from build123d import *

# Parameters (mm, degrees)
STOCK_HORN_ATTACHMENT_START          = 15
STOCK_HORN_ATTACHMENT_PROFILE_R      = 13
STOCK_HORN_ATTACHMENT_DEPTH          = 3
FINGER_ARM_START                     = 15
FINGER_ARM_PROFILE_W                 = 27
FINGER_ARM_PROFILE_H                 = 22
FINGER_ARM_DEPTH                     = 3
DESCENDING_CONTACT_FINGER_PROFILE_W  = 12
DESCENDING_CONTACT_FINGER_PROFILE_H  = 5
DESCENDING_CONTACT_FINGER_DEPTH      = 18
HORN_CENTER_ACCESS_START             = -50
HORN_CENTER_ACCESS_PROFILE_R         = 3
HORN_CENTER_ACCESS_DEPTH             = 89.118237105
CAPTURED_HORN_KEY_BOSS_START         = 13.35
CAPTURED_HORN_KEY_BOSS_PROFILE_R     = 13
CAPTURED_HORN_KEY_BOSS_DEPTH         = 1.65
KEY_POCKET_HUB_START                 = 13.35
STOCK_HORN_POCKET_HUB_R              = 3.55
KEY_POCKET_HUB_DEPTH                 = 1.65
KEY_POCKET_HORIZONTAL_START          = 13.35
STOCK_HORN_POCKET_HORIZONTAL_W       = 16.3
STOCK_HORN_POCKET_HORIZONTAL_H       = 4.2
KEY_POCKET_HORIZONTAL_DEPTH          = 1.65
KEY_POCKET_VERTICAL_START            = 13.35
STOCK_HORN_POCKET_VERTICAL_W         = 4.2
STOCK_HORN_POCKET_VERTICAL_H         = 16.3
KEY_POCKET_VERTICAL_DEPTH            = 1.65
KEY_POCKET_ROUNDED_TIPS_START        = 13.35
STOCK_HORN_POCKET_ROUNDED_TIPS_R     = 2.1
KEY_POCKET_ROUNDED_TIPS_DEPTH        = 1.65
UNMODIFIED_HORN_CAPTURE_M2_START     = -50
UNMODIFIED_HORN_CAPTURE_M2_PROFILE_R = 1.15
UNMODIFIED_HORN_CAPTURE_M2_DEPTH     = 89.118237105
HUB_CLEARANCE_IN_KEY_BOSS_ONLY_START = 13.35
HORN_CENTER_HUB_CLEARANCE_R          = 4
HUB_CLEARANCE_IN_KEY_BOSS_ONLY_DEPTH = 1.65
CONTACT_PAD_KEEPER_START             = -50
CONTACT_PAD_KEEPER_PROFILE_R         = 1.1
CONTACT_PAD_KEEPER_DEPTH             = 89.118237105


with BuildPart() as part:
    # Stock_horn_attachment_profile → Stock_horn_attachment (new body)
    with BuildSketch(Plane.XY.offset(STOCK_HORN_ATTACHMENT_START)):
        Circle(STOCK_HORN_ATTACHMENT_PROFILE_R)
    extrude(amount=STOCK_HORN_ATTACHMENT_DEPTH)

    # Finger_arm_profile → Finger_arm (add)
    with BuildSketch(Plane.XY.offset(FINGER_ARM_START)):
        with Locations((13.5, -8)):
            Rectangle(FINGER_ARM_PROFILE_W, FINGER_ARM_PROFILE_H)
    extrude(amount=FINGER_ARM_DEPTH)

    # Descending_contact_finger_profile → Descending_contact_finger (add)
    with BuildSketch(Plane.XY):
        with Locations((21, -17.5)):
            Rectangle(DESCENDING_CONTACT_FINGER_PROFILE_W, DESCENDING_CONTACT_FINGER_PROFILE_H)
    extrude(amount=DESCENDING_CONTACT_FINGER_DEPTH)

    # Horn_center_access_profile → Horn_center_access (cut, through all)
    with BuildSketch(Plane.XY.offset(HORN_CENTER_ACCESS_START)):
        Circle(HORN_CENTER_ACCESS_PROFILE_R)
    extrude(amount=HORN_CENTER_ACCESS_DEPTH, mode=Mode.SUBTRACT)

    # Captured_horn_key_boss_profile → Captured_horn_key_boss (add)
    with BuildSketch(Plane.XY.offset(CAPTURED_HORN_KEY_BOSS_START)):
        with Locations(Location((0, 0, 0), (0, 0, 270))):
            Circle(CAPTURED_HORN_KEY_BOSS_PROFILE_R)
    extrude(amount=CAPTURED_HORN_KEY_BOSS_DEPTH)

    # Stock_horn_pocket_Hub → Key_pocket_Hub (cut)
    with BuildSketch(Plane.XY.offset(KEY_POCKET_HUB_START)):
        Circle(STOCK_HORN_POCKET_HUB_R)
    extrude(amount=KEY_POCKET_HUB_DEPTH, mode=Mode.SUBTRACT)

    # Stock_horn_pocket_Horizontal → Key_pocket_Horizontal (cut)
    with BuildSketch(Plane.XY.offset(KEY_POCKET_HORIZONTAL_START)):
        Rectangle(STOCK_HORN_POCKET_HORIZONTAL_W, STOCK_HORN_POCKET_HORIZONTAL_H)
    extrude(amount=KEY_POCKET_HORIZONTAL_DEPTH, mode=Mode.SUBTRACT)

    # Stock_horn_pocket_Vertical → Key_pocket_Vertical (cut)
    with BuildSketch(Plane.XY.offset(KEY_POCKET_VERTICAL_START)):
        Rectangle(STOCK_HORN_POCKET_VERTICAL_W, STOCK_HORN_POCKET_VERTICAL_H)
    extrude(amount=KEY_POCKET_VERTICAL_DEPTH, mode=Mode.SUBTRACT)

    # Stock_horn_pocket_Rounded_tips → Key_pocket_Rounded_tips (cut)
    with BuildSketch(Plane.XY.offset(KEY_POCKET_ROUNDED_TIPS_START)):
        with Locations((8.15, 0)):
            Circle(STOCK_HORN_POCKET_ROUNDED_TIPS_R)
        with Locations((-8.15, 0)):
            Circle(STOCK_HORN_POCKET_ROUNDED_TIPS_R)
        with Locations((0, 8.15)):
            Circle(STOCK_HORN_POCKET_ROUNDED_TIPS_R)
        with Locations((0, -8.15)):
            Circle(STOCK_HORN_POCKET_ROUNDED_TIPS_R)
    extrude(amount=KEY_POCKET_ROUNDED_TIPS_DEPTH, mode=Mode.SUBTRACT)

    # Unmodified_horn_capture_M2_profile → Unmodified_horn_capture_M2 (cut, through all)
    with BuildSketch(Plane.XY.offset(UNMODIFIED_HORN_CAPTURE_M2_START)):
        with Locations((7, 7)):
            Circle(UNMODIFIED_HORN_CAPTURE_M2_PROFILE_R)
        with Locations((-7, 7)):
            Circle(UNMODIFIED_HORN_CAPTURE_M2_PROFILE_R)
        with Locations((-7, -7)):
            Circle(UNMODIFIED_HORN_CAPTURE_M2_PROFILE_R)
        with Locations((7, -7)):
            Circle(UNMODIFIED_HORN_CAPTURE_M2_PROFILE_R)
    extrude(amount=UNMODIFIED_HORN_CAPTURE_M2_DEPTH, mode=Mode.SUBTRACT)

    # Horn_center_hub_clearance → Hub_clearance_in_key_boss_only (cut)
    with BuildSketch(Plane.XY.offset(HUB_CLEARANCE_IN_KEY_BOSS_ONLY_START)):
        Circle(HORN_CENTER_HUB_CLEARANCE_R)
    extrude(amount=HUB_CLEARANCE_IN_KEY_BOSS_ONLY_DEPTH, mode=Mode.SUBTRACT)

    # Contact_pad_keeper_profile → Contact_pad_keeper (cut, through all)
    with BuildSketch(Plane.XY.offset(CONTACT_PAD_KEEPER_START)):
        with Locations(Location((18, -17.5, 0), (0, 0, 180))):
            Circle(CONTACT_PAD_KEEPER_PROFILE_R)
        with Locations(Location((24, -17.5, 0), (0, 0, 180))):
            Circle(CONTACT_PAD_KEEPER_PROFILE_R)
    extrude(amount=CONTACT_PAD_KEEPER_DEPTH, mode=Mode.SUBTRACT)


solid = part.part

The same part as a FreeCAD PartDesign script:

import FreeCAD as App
import Part
import Sketcher

V = App.Vector
Q = App.Units.Quantity

doc = App.newDocument("Part")
params = doc.addObject("Spreadsheet::Sheet", "Params")
for row, (alias, value) in enumerate([
    ("sketch1_diameter", "26 mm"),
    ("pad1_length", "3 mm"),
    ("sketch2_width", "27 mm"),
    ("sketch2_height", "22 mm"),
    ("pad2_length", "3 mm"),
    ("sketch3_width", "12 mm"),
    ("sketch3_height", "5 mm"),
    ("pad3_length", "18 mm"),
    ("sketch4_diameter", "6 mm"),
    ("sketch5_diameter", "26 mm"),
    ("pad4_length", "1.65 mm"),
    ("sketch6_diameter", "7.1 mm"),
    ("pocket2_length", "1.65 mm"),
    ("sketch7_width", "16.3 mm"),
    ("sketch7_height", "4.2 mm"),
    ("pocket3_length", "1.65 mm"),
    ("sketch8_width", "4.2 mm"),
    ("sketch8_height", "16.3 mm"),
    ("pocket4_length", "1.65 mm"),
    ("sketch9_diameter", "4.2 mm"),
    ("pocket5_length", "1.65 mm"),
    ("sketch10_diameter", "2.3 mm"),
    ("sketch11_diameter", "8 mm"),
    ("pocket7_length", "1.65 mm"),
    ("sketch12_diameter", "2.2 mm"),
], start=1):
    params.set(f"A{row}", alias)
    params.set(f"B{row}", "=" + value)
    params.setAlias(f"B{row}", alias)

body = doc.addObject("PartDesign::Body", "Body")

sketch1 = doc.addObject("Sketcher::SketchObject", "Sketch")
body.addObject(sketch1)
sketch1.AttachmentSupport = (doc.XY_Plane, [""])
sketch1.MapMode = "FlatFace"
sketch1.AttachmentOffset = App.Placement(V(0, 0, 15), App.Rotation())
sketch1.addGeometry(Part.Circle(V(0, 0, 0), V(0, 0, 1), 13), False)
sketch1.addConstraint(Sketcher.Constraint("Coincident", 0, 3, -1, 1))
sketch1.addConstraint(Sketcher.Constraint("Diameter", 0, Q("26 mm")))
sketch1.setExpression("Constraints[1]", "Params.sketch1_diameter")
pad1 = doc.addObject("PartDesign::Pad", "Pad")
body.addObject(pad1)
pad1.Profile = sketch1
pad1.setExpression("Length", "Params.pad1_length")

sketch2 = doc.addObject("Sketcher::SketchObject", "Sketch001")
body.addObject(sketch2)
sketch2.AttachmentSupport = (doc.XY_Plane, [""])
sketch2.MapMode = "FlatFace"
sketch2.AttachmentOffset = App.Placement(V(0, 0, 15), App.Rotation())
sketch2.addGeometry(Part.LineSegment(V(0, 3, 0), V(0, -19, 0)), False)
sketch2.addGeometry(Part.LineSegment(V(0, -19, 0), V(27, -19, 0)), False)
sketch2.addGeometry(Part.LineSegment(V(27, -19, 0), V(27, 3, 0)), False)
sketch2.addGeometry(Part.LineSegment(V(27, 3, 0), V(0, 3, 0)), False)
sketch2.addConstraint(Sketcher.Constraint("Coincident", 0, 2, 1, 1))
sketch2.addConstraint(Sketcher.Constraint("Coincident", 1, 2, 2, 1))
sketch2.addConstraint(Sketcher.Constraint("Coincident", 2, 2, 3, 1))
sketch2.addConstraint(Sketcher.Constraint("Coincident", 3, 2, 0, 1))
sketch2.addConstraint(Sketcher.Constraint("Vertical", 0))
sketch2.addConstraint(Sketcher.Constraint("Horizontal", 1))
sketch2.addConstraint(Sketcher.Constraint("Vertical", 2))
sketch2.addConstraint(Sketcher.Constraint("Horizontal", 3))
sketch2.addConstraint(Sketcher.Constraint("PointOnObject", 0, 2, -2))
sketch2.addConstraint(Sketcher.Constraint("DistanceX", 1, 1, 1, 2, Q("27 mm")))
sketch2.addConstraint(Sketcher.Constraint("DistanceY", 0, 2, 0, 1, Q("22 mm")))
sketch2.addConstraint(Sketcher.Constraint("DistanceY", 0, 2, -1, 1, Q("19 mm")))
sketch2.setExpression("Constraints[9]", "Params.sketch2_width")
sketch2.setExpression("Constraints[10]", "Params.sketch2_height")
pad2 = doc.addObject("PartDesign::Pad", "Pad001")
body.addObject(pad2)
pad2.Profile = sketch2
pad2.setExpression("Length", "Params.pad2_length")

sketch3 = doc.addObject("Sketcher::SketchObject", "Sketch002")
body.addObject(sketch3)
sketch3.AttachmentSupport = (doc.XY_Plane, [""])
sketch3.MapMode = "FlatFace"
sketch3.addGeometry(Part.LineSegment(V(15, -15, 0), V(15, -20, 0)), False)
sketch3.addGeometry(Part.LineSegment(V(15, -20, 0), V(27, -20, 0)), False)
sketch3.addGeometry(Part.LineSegment(V(27, -20, 0), V(27, -15, 0)), False)
sketch3.addGeometry(Part.LineSegment(V(27, -15, 0), V(15, -15, 0)), False)
sketch3.addConstraint(Sketcher.Constraint("Coincident", 0, 2, 1, 1))
sketch3.addConstraint(Sketcher.Constraint("Coincident", 1, 2, 2, 1))
sketch3.addConstraint(Sketcher.Constraint("Coincident", 2, 2, 3, 1))
sketch3.addConstraint(Sketcher.Constraint("Coincident", 3, 2, 0, 1))
sketch3.addConstraint(Sketcher.Constraint("Vertical", 0))
sketch3.addConstraint(Sketcher.Constraint("Horizontal", 1))
sketch3.addConstraint(Sketcher.Constraint("Vertical", 2))
sketch3.addConstraint(Sketcher.Constraint("Horizontal", 3))
sketch3.addConstraint(Sketcher.Constraint("DistanceX", 1, 1, 1, 2, Q("12 mm")))
sketch3.addConstraint(Sketcher.Constraint("DistanceY", 0, 2, 0, 1, Q("5 mm")))
sketch3.addConstraint(Sketcher.Constraint("DistanceX", -1, 1, 0, 2, Q("15 mm")))
sketch3.addConstraint(Sketcher.Constraint("DistanceY", 0, 2, -1, 1, Q("20 mm")))
sketch3.setExpression("Constraints[8]", "Params.sketch3_width")
sketch3.setExpression("Constraints[9]", "Params.sketch3_height")
pad3 = doc.addObject("PartDesign::Pad", "Pad002")
body.addObject(pad3)
pad3.Profile = sketch3
pad3.setExpression("Length", "Params.pad3_length")

sketch4 = doc.addObject("Sketcher::SketchObject", "Sketch003")
body.addObject(sketch4)
sketch4.AttachmentSupport = (doc.XY_Plane, [""])
sketch4.MapMode = "FlatFace"
sketch4.AttachmentOffset = App.Placement(V(0, 0, -50), App.Rotation())
sketch4.addGeometry(Part.Circle(V(0, 0, 0), V(0, 0, 1), 3), False)
sketch4.addConstraint(Sketcher.Constraint("Coincident", 0, 3, -1, 1))
sketch4.addConstraint(Sketcher.Constraint("Diameter", 0, Q("6 mm")))
sketch4.setExpression("Constraints[1]", "Params.sketch4_diameter")
pocket1 = doc.addObject("PartDesign::Pocket", "Pocket")
body.addObject(pocket1)
pocket1.Profile = sketch4
pocket1.Type = "ThroughAll"
pocket1.Reversed = True

sketch5 = doc.addObject("Sketcher::SketchObject", "Sketch004")
body.addObject(sketch5)
sketch5.AttachmentSupport = (doc.XY_Plane, [""])
sketch5.MapMode = "FlatFace"
sketch5.AttachmentOffset = App.Placement(V(0, 0, 13.35), App.Rotation())
sketch5.addGeometry(Part.Circle(V(0, 0, 0), V(0, 0, 1), 13), False)
sketch5.addConstraint(Sketcher.Constraint("Coincident", 0, 3, -1, 1))
sketch5.addConstraint(Sketcher.Constraint("Diameter", 0, Q("26 mm")))
sketch5.setExpression("Constraints[1]", "Params.sketch5_diameter")
pad4 = doc.addObject("PartDesign::Pad", "Pad003")
body.addObject(pad4)
pad4.Profile = sketch5
pad4.setExpression("Length", "Params.pad4_length")

sketch6 = doc.addObject("Sketcher::SketchObject", "Sketch005")
body.addObject(sketch6)
sketch6.AttachmentSupport = (doc.XY_Plane, [""])
sketch6.MapMode = "FlatFace"
sketch6.AttachmentOffset = App.Placement(V(0, 0, 13.35), App.Rotation())
sketch6.addGeometry(Part.Circle(V(0, 0, 0), V(0, 0, 1), 3.5), False)
sketch6.addConstraint(Sketcher.Constraint("Coincident", 0, 3, -1, 1))
sketch6.addConstraint(Sketcher.Constraint("Diameter", 0, Q("7.1 mm")))
sketch6.setExpression("Constraints[1]", "Params.sketch6_diameter")
pocket2 = doc.addObject("PartDesign::Pocket", "Pocket001")
body.addObject(pocket2)
pocket2.Profile = sketch6
pocket2.setExpression("Length", "Params.pocket2_length")
pocket2.Reversed = True

sketch7 = doc.addObject("Sketcher::SketchObject", "Sketch006")
body.addObject(sketch7)
sketch7.AttachmentSupport = (doc.XY_Plane, [""])
sketch7.MapMode = "FlatFace"
sketch7.AttachmentOffset = App.Placement(V(0, 0, 13.35), App.Rotation())
sketch7.addGeometry(Part.LineSegment(V(-8.2, 2.1, 0), V(-8.2, -2.1, 0)), False)
sketch7.addGeometry(Part.LineSegment(V(-8.2, -2.1, 0), V(8.2, -2.1, 0)), False)
sketch7.addGeometry(Part.LineSegment(V(8.2, -2.1, 0), V(8.2, 2.1, 0)), False)
sketch7.addGeometry(Part.LineSegment(V(8.2, 2.1, 0), V(-8.2, 2.1, 0)), False)
sketch7.addConstraint(Sketcher.Constraint("Coincident", 0, 2, 1, 1))
sketch7.addConstraint(Sketcher.Constraint("Coincident", 1, 2, 2, 1))
sketch7.addConstraint(Sketcher.Constraint("Coincident", 2, 2, 3, 1))
sketch7.addConstraint(Sketcher.Constraint("Coincident", 3, 2, 0, 1))
sketch7.addConstraint(Sketcher.Constraint("Vertical", 0))
sketch7.addConstraint(Sketcher.Constraint("Horizontal", 1))
sketch7.addConstraint(Sketcher.Constraint("Vertical", 2))
sketch7.addConstraint(Sketcher.Constraint("Horizontal", 3))
sketch7.addConstraint(Sketcher.Constraint("Symmetric", 0, 2, 2, 2, -1, 1))
sketch7.addConstraint(Sketcher.Constraint("DistanceX", 1, 1, 1, 2, Q("16.3 mm")))
sketch7.addConstraint(Sketcher.Constraint("DistanceY", 0, 2, 0, 1, Q("4.2 mm")))
sketch7.setExpression("Constraints[9]", "Params.sketch7_width")
sketch7.setExpression("Constraints[10]", "Params.sketch7_height")
pocket3 = doc.addObject("PartDesign::Pocket", "Pocket002")
body.addObject(pocket3)
pocket3.Profile = sketch7
pocket3.setExpression("Length", "Params.pocket3_length")
pocket3.Reversed = True

sketch8 = doc.addObject("Sketcher::SketchObject", "Sketch007")
body.addObject(sketch8)
sketch8.AttachmentSupport = (doc.XY_Plane, [""])
sketch8.MapMode = "FlatFace"
sketch8.AttachmentOffset = App.Placement(V(0, 0, 13.35), App.Rotation())
sketch8.addGeometry(Part.LineSegment(V(-2.1, 8.2, 0), V(-2.1, -8.2, 0)), False)
sketch8.addGeometry(Part.LineSegment(V(-2.1, -8.2, 0), V(2.1, -8.2, 0)), False)
sketch8.addGeometry(Part.LineSegment(V(2.1, -8.2, 0), V(2.1, 8.2, 0)), False)
sketch8.addGeometry(Part.LineSegment(V(2.1, 8.2, 0), V(-2.1, 8.2, 0)), False)
sketch8.addConstraint(Sketcher.Constraint("Coincident", 0, 2, 1, 1))
sketch8.addConstraint(Sketcher.Constraint("Coincident", 1, 2, 2, 1))
sketch8.addConstraint(Sketcher.Constraint("Coincident", 2, 2, 3, 1))
sketch8.addConstraint(Sketcher.Constraint("Coincident", 3, 2, 0, 1))
sketch8.addConstraint(Sketcher.Constraint("Vertical", 0))
sketch8.addConstraint(Sketcher.Constraint("Horizontal", 1))
sketch8.addConstraint(Sketcher.Constraint("Vertical", 2))
sketch8.addConstraint(Sketcher.Constraint("Horizontal", 3))
sketch8.addConstraint(Sketcher.Constraint("Symmetric", 0, 2, 2, 2, -1, 1))
sketch8.addConstraint(Sketcher.Constraint("DistanceX", 1, 1, 1, 2, Q("4.2 mm")))
sketch8.addConstraint(Sketcher.Constraint("DistanceY", 0, 2, 0, 1, Q("16.3 mm")))
sketch8.setExpression("Constraints[9]", "Params.sketch8_width")
sketch8.setExpression("Constraints[10]", "Params.sketch8_height")
pocket4 = doc.addObject("PartDesign::Pocket", "Pocket003")
body.addObject(pocket4)
pocket4.Profile = sketch8
pocket4.setExpression("Length", "Params.pocket4_length")
pocket4.Reversed = True

sketch9 = doc.addObject("Sketcher::SketchObject", "Sketch008")
body.addObject(sketch9)
sketch9.AttachmentSupport = (doc.XY_Plane, [""])
sketch9.MapMode = "FlatFace"
sketch9.AttachmentOffset = App.Placement(V(0, 0, 13.35), App.Rotation())
sketch9.addGeometry(Part.Circle(V(8.2, 0, 0), V(0, 0, 1), 2.1), False)
sketch9.addGeometry(Part.Circle(V(-8.2, 0, 0), V(0, 0, 1), 2.1), False)
sketch9.addGeometry(Part.Circle(V(0, 8.2, 0), V(0, 0, 1), 2.1), False)
sketch9.addGeometry(Part.Circle(V(0, -8.2, 0), V(0, 0, 1), 2.1), False)
sketch9.addConstraint(Sketcher.Constraint("Equal", 0, 1))
sketch9.addConstraint(Sketcher.Constraint("Equal", 1, 2))
sketch9.addConstraint(Sketcher.Constraint("Equal", 2, 3))
sketch9.addConstraint(Sketcher.Constraint("Symmetric", 0, 3, 1, 3, -1, 1))
sketch9.addConstraint(Sketcher.Constraint("Symmetric", 2, 3, 3, 3, -1, 1))
sketch9.addConstraint(Sketcher.Constraint("PointOnObject", 0, 3, -1))
sketch9.addConstraint(Sketcher.Constraint("PointOnObject", 2, 3, -2))
sketch9.addConstraint(Sketcher.Constraint("Diameter", 0, Q("4.2 mm")))
sketch9.addConstraint(Sketcher.Constraint("DistanceX", 1, 3, 0, 3, Q("16.3 mm")))
sketch9.addConstraint(Sketcher.Constraint("DistanceY", 3, 3, 2, 3, Q("16.3 mm")))
sketch9.setExpression("Constraints[7]", "Params.sketch9_diameter")
pocket5 = doc.addObject("PartDesign::Pocket", "Pocket004")
body.addObject(pocket5)
pocket5.Profile = sketch9
pocket5.setExpression("Length", "Params.pocket5_length")
pocket5.Reversed = True

sketch10 = doc.addObject("Sketcher::SketchObject", "Sketch009")
body.addObject(sketch10)
sketch10.AttachmentSupport = (doc.XY_Plane, [""])
sketch10.MapMode = "FlatFace"
sketch10.AttachmentOffset = App.Placement(V(0, 0, -50), App.Rotation())
sketch10.addGeometry(Part.Circle(V(7, 7, 0), V(0, 0, 1), 1.1), False)
sketch10.addGeometry(Part.Circle(V(-7, 7, 0), V(0, 0, 1), 1.1), False)
sketch10.addGeometry(Part.Circle(V(-7, -7, 0), V(0, 0, 1), 1.1), False)
sketch10.addGeometry(Part.Circle(V(7, -7, 0), V(0, 0, 1), 1.1), False)
sketch10.addConstraint(Sketcher.Constraint("Equal", 0, 1))
sketch10.addConstraint(Sketcher.Constraint("Equal", 1, 2))
sketch10.addConstraint(Sketcher.Constraint("Equal", 2, 3))
sketch10.addConstraint(Sketcher.Constraint("Symmetric", 0, 3, 2, 3, -1, 1))
sketch10.addConstraint(Sketcher.Constraint("Symmetric", 1, 3, 3, 3, -1, 1))
sketch10.addConstraint(Sketcher.Constraint("Symmetric", 0, 3, 1, 3, -2))
sketch10.addConstraint(Sketcher.Constraint("Diameter", 0, Q("2.3 mm")))
sketch10.addConstraint(Sketcher.Constraint("DistanceX", -1, 1, 0, 3, Q("7 mm")))
sketch10.addConstraint(Sketcher.Constraint("DistanceY", -1, 1, 0, 3, Q("7 mm")))
sketch10.setExpression("Constraints[6]", "Params.sketch10_diameter")
pocket6 = doc.addObject("PartDesign::Pocket", "Pocket005")
body.addObject(pocket6)
pocket6.Profile = sketch10
pocket6.Type = "ThroughAll"
pocket6.Reversed = True

sketch11 = doc.addObject("Sketcher::SketchObject", "Sketch010")
body.addObject(sketch11)
sketch11.AttachmentSupport = (doc.XY_Plane, [""])
sketch11.MapMode = "FlatFace"
sketch11.AttachmentOffset = App.Placement(V(0, 0, 13.35), App.Rotation())
sketch11.addGeometry(Part.Circle(V(0, 0, 0), V(0, 0, 1), 4), False)
sketch11.addConstraint(Sketcher.Constraint("Coincident", 0, 3, -1, 1))
sketch11.addConstraint(Sketcher.Constraint("Diameter", 0, Q("8 mm")))
sketch11.setExpression("Constraints[1]", "Params.sketch11_diameter")
pocket7 = doc.addObject("PartDesign::Pocket", "Pocket006")
body.addObject(pocket7)
pocket7.Profile = sketch11
pocket7.setExpression("Length", "Params.pocket7_length")
pocket7.Reversed = True

sketch12 = doc.addObject("Sketcher::SketchObject", "Sketch011")
body.addObject(sketch12)
sketch12.AttachmentSupport = (doc.XY_Plane, [""])
sketch12.MapMode = "FlatFace"
sketch12.AttachmentOffset = App.Placement(V(0, 0, -50), App.Rotation())
sketch12.addGeometry(Part.Circle(V(18, -17.5, 0), V(0, 0, 1), 1.1), False)
sketch12.addGeometry(Part.Circle(V(24, -17.5, 0), V(0, 0, 1), 1.1), False)
sketch12.addConstraint(Sketcher.Constraint("Equal", 0, 1))
sketch12.addConstraint(Sketcher.Constraint("Horizontal", 0, 3, 1, 3))
sketch12.addConstraint(Sketcher.Constraint("Diameter", 0, Q("2.2 mm")))
sketch12.addConstraint(Sketcher.Constraint("DistanceX", -1, 1, 0, 3, Q("18 mm")))
sketch12.addConstraint(Sketcher.Constraint("DistanceX", -1, 1, 1, 3, Q("24 mm")))
sketch12.addConstraint(Sketcher.Constraint("DistanceY", 0, 3, -1, 1, Q("17.5 mm")))
sketch12.setExpression("Constraints[2]", "Params.sketch12_diameter")
pocket8 = doc.addObject("PartDesign::Pocket", "Pocket007")
body.addObject(pocket8)
pocket8.Profile = sketch12
pocket8.Type = "ThroughAll"
pocket8.Reversed = True

doc.recompute()
